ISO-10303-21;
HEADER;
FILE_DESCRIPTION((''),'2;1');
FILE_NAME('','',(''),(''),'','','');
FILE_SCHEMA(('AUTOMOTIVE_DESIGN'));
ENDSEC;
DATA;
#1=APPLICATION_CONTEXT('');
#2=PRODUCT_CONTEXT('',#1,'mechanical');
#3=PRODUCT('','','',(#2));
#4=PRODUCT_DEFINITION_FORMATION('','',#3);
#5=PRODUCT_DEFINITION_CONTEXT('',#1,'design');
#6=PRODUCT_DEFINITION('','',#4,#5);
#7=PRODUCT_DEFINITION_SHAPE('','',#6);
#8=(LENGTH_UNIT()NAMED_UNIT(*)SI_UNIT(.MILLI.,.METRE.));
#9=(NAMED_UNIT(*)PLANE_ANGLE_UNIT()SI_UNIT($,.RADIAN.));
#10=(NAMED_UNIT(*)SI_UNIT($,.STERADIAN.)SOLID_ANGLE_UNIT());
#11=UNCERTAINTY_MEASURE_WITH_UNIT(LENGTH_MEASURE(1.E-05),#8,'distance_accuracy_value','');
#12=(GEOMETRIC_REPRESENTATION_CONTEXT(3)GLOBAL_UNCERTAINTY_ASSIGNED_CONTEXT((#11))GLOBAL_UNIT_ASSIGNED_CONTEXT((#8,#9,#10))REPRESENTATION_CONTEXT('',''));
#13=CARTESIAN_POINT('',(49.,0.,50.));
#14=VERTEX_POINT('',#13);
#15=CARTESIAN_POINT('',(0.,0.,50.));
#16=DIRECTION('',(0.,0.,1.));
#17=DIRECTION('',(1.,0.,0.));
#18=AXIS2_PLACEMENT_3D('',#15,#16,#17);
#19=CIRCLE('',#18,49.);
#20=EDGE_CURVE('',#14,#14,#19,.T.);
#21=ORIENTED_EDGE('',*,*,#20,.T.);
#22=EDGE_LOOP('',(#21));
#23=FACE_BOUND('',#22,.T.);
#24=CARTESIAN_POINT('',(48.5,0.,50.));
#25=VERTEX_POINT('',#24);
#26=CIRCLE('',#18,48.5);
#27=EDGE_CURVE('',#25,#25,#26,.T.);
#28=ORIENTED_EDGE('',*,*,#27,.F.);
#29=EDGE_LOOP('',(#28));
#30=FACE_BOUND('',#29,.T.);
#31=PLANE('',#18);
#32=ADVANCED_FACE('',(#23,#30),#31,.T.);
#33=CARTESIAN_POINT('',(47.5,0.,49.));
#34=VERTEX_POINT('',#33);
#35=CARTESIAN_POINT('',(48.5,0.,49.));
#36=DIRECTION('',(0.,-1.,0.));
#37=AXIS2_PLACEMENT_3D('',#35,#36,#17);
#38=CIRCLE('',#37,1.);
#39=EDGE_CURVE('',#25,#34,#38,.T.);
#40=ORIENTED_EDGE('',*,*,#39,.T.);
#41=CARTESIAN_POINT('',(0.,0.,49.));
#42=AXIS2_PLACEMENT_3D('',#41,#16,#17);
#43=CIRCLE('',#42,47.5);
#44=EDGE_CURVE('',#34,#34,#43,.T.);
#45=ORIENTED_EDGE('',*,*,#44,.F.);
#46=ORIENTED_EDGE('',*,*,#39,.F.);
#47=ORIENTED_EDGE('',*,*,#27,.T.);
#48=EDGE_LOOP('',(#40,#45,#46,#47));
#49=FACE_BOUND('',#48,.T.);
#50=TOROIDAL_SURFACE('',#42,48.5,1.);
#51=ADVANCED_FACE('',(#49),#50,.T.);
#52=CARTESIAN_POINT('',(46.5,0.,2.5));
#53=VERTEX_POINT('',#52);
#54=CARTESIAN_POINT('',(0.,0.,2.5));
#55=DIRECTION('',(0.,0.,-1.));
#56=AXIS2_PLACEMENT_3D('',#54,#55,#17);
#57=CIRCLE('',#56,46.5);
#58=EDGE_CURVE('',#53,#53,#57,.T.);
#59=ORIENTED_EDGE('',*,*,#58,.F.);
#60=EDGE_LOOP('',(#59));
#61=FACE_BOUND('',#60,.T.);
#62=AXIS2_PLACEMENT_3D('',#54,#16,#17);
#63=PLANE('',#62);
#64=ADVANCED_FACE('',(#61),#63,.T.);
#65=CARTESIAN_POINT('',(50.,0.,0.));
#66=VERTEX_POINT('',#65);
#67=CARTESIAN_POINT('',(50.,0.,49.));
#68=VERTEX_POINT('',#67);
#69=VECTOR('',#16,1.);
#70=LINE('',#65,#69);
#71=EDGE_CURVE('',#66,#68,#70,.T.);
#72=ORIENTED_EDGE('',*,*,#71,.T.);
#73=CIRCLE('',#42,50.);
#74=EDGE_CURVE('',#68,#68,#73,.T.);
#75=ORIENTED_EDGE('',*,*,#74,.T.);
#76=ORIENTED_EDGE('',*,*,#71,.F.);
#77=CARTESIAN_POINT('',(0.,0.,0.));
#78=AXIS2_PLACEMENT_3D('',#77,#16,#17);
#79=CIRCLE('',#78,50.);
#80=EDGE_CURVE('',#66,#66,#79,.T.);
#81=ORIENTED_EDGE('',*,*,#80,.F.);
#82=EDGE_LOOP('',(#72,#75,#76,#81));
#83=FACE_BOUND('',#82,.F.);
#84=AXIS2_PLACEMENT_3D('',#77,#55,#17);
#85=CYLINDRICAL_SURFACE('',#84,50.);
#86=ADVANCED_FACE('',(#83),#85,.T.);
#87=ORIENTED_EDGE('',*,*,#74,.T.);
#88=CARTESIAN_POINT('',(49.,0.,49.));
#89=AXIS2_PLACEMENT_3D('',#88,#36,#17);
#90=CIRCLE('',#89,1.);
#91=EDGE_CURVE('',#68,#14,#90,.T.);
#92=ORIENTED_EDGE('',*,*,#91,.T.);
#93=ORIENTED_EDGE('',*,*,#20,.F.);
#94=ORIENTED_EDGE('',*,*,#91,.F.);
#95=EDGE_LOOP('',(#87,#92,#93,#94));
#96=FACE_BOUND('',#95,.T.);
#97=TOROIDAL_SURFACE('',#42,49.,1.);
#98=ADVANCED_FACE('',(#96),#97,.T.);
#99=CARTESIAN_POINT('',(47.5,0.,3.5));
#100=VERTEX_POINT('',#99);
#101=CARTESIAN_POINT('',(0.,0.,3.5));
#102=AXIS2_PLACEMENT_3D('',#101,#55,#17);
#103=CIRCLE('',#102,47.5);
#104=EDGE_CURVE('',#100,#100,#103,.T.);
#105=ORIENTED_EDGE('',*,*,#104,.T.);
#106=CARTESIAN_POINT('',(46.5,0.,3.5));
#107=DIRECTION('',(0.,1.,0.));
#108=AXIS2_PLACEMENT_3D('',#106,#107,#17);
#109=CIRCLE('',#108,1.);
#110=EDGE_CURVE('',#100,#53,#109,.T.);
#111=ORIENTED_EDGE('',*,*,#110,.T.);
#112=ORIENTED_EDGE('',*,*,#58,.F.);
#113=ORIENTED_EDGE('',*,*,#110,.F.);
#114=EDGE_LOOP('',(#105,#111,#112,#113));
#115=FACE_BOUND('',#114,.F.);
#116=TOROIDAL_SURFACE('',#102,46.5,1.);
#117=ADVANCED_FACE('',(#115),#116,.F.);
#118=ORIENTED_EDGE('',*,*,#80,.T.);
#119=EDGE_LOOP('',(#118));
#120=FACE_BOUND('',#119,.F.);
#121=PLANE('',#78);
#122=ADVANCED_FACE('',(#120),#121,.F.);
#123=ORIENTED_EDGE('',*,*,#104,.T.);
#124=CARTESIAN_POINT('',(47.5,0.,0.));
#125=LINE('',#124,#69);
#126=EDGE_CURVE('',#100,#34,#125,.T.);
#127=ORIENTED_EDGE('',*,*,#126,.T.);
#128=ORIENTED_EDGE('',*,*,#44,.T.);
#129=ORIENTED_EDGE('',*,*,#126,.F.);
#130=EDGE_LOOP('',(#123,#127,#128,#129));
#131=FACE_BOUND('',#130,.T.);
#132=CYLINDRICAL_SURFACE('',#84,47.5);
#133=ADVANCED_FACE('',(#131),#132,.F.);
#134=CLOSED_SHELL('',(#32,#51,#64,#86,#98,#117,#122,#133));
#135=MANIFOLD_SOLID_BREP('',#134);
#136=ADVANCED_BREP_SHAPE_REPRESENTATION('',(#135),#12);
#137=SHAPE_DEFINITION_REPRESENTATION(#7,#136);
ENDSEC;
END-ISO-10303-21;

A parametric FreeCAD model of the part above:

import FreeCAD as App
import Part
import Sketcher

V = App.Vector
Q = App.Units.Quantity


def edges_at(feature, points):
    """Names of the edges that pass closest to the given points."""
    edges = feature.Shape.Edges
    near = lambda p: min(range(len(edges)), key=lambda i: edges[i].distToShape(Part.Vertex(*p))[0])
    return sorted({f"Edge{near(p) + 1}" for p in points})


def faces_at(feature, points):
    """Names of the faces that lie closest to the given points."""
    faces = feature.Shape.Faces
    near = lambda p: min(range(len(faces)), key=lambda i: faces[i].distToShape(Part.Vertex(*p))[0])
    return sorted({f"Face{near(p) + 1}" for p in points})

doc = App.newDocument("Part")
body = doc.addObject("PartDesign::Body", "Body")

sketch1 = body.newObject("Sketcher::SketchObject", "Sketch")
sketch1.AttachmentSupport = (doc.getObject("XY_Plane"), [""])
sketch1.MapMode = "FlatFace"
sketch1.addGeometry(Part.Circle(V(0, 0, 0), V(0, 0, 1), 50), False)
sketch1.addConstraint([
    Sketcher.Constraint("Coincident", 0, 3, -1, 1),
    Sketcher.Constraint("Diameter", 0, Q("100 mm")),
])
pad1 = body.newObject("PartDesign::Pad", "Pad")
pad1.Profile = sketch1
pad1.Length = 50
doc.recompute()

thickness = body.newObject("PartDesign::Thickness", "Thickness")
thickness.Base = (pad1, faces_at(pad1, [(0, 0, 50)]))
thickness.Value = 2.5
thickness.Reversed = True
thickness.Join = "Arc"
doc.recompute()

fillet = body.newObject("PartDesign::Fillet", "Fillet")
fillet.Base = (thickness, edges_at(thickness, [(-50, 0, 50), (-47.5, 0, 50), (-47.5, 0, 2.5)]))
fillet.Radius = 1

doc.recompute()
